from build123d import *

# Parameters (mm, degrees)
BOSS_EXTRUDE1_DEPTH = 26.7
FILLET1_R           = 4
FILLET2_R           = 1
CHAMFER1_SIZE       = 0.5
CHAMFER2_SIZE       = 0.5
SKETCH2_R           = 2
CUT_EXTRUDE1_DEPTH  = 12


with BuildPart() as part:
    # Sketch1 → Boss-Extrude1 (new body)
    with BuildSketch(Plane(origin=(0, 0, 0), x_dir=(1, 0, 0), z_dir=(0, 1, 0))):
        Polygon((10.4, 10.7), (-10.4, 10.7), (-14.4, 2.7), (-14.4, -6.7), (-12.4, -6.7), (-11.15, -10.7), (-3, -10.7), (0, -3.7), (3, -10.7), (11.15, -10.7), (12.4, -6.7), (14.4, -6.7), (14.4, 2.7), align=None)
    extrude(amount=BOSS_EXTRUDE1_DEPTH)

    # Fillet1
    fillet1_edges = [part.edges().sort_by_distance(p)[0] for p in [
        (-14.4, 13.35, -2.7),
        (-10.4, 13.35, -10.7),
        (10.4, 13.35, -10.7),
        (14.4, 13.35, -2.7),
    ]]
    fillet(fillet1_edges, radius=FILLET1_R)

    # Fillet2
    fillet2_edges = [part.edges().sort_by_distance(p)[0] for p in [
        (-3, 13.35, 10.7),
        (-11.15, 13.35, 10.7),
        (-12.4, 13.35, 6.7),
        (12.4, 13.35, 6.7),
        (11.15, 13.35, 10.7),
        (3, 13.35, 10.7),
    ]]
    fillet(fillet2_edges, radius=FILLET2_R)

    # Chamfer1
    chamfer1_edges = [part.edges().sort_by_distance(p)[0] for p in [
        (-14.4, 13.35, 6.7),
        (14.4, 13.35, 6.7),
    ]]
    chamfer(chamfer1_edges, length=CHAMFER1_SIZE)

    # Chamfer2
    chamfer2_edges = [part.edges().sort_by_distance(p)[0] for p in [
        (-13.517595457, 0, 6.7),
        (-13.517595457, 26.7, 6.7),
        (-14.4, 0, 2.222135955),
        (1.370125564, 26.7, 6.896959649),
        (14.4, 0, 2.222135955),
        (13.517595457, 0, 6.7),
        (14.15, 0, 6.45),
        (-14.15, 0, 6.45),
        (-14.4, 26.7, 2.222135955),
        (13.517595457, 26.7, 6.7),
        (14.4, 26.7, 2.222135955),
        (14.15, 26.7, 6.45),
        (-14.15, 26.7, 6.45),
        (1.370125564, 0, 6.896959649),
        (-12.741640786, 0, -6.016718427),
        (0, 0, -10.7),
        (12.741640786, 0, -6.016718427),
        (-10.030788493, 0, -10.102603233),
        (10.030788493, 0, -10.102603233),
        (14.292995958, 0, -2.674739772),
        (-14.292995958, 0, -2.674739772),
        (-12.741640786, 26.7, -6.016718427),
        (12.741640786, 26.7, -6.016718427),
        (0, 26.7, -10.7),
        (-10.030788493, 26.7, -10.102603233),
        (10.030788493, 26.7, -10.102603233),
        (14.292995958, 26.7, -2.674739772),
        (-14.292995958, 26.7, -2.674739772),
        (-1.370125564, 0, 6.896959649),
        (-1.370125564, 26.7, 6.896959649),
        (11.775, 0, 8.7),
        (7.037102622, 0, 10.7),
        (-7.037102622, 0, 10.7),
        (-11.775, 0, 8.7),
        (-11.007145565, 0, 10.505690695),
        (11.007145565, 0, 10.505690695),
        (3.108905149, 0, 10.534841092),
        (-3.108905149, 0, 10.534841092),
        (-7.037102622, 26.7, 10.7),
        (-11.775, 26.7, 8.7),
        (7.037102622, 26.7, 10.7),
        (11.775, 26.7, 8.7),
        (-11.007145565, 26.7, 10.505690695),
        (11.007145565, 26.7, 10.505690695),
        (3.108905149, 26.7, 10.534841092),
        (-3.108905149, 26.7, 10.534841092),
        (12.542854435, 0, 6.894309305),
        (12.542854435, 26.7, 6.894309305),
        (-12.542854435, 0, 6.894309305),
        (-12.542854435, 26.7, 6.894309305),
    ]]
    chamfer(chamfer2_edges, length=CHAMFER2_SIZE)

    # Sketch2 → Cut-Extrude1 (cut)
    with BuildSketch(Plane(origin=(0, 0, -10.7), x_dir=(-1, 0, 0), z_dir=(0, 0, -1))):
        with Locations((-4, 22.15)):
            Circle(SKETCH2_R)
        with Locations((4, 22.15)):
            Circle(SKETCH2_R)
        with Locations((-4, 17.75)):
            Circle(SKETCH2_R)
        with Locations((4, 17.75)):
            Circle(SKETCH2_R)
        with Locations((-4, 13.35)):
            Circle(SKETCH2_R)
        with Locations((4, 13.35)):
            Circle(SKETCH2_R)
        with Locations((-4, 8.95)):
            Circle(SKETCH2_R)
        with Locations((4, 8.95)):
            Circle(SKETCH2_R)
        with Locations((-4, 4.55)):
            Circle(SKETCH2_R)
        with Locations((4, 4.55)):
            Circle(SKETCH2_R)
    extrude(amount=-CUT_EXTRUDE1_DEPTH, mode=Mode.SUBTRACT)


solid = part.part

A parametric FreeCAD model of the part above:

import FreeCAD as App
import Part
import Sketcher

V = App.Vector
Q = App.Units.Quantity


def edges_at(feature, points):
    """Names of the edges that pass closest to the given points."""
    edges = feature.Shape.Edges
    near = lambda p: min(range(len(edges)), key=lambda i: edges[i].distToShape(Part.Vertex(*p))[0])
    return sorted({f"Edge{near(p) + 1}" for p in points})


def add_polygon(sketch, points):
    """Adds a closed chain of lines whose ends are joined by coincident constraints."""
    first, n = sketch.GeometryCount, len(points)
    for a, b in zip(points, points[1:] + points[:1]):
        sketch.addGeometry(Part.LineSegment(App.Vector(*a, 0), App.Vector(*b, 0)), False)
    for i in range(n):
        sketch.addConstraint(Sketcher.Constraint("Coincident", first + i, 2, first + (i + 1) % n, 1))

doc = App.newDocument("Part")
params = doc.addObject("Spreadsheet::Sheet", "Params")
for row, (alias, value) in enumerate([
    ("sketch1_width", "2 mm"),
    ("sketch1_width2", "20.8 mm"),
    ("sketch1_height", "9.4 mm"),
    ("sketch1_width3", "8.15 mm"),
    ("pad1_length", "26.7 mm"),
    ("fillet_radius", "4 mm"),
    ("fillet2_radius", "1 mm"),
    ("chamfer_size", "0.5 mm"),
    ("chamfer2_size", "0.5 mm"),
    ("sketch2_diameter", "4 mm"),
    ("pocket1_length", "12 mm"),
], start=1):
    params.set(f"A{row}", alias)
    params.set(f"B{row}", "=" + value)
    params.setAlias(f"B{row}", alias)

body = doc.addObject("PartDesign::Body", "Body")

# Sketch on XZ plane
sketch1 = body.newObject("Sketcher::SketchObject", "Sketch")
sketch1.AttachmentSupport = (doc.getObject("XZ_Plane"), [""])
sketch1.MapMode = "FlatFace"
add_polygon(sketch1, [(10.4, -10.7), (-10.4, -10.7), (-14.4, -2.7), (-14.4, 6.7), (-12.4, 6.7), (-11.2, 10.7), (-3, 10.7), (0, 3.7), (3, 10.7), (11.2, 10.7), (12.4, 6.7), (14.4, 6.7), (14.4, -2.7)])  # lines 0-12
sketch1.addConstraint(Sketcher.Constraint("Horizontal", 0))
sketch1.addConstraint(Sketcher.Constraint("Vertical", 2))
sketch1.addConstraint(Sketcher.Constraint("Horizontal", 3))
sketch1.addConstraint(Sketcher.Constraint("Horizontal", 5))
sketch1.addConstraint(Sketcher.Constraint("Horizontal", 8))
sketch1.addConstraint(Sketcher.Constraint("Horizontal", 10))
sketch1.addConstraint(Sketcher.Constraint("Vertical", 11))
sketch1.addConstraint(Sketcher.Constraint("Symmetric", 5, 2, 7, 2, -2))
sketch1.addConstraint(Sketcher.Constraint("Symmetric", 3, 2, 9, 2, -2))
sketch1.addConstraint(Sketcher.Constraint("Symmetric", 1, 2, 11, 2, -2))
sketch1.addConstraint(Sketcher.Constraint("PointOnObject", 6, 2, -2))
sketch1.addConstraint(Sketcher.Constraint("Equal", 5, 8))
sketch1.addConstraint(Sketcher.Constraint("Equal", 1, 12))
sketch1.addConstraint(Sketcher.Constraint("DistanceX", 3, 1, 3, 2, Q("2 mm")))
sketch1.addConstraint(Sketcher.Constraint("DistanceX", 0, 2, 0, 1, Q("20.8 mm")))
sketch1.addConstraint(Sketcher.Constraint("DistanceY", 2, 1, 2, 2, Q("9.4 mm")))
sketch1.addConstraint(Sketcher.Constraint("DistanceX", 5, 2, -1, 1, Q("3 mm")))
sketch1.addConstraint(Sketcher.Constraint("DistanceX", 1, 2, 0, 2, Q("4 mm")))
sketch1.addConstraint(Sketcher.Constraint("DistanceY", 0, 2, 1, 2, Q("8 mm")))
sketch1.addConstraint(Sketcher.Constraint("DistanceY", 3, 2, 4, 2, Q("4 mm")))
sketch1.addConstraint(Sketcher.Constraint("DistanceY", 6, 2, 5, 2, Q("7 mm")))
sketch1.addConstraint(Sketcher.Constraint("DistanceX", 5, 1, 5, 2, Q("8.15 mm")))
sketch1.addConstraint(Sketcher.Constraint("DistanceY", 0, 2, -1, 1, Q("10.7 mm")))
sketch1.setExpression("Constraints[26]", "Params.sketch1_width")
sketch1.setExpression("Constraints[27]", "Params.sketch1_width2")
sketch1.setExpression("Constraints[28]", "Params.sketch1_height")
sketch1.setExpression("Constraints[34]", "Params.sketch1_width3")
pad1 = body.newObject("PartDesign::Pad", "Pad")
pad1.Profile = sketch1
pad1.setExpression("Length", "Params.pad1_length")
pad1.Reversed = True
doc.recompute()

fillet = body.newObject("PartDesign::Fillet", "Fillet")
fillet.Base = (pad1, edges_at(pad1, [
    (-14.4, 13.35, -2.7),
    (-10.4, 13.35, -10.7),
    (10.4, 13.35, -10.7),
    (14.4, 13.35, -2.7),
]))
fillet.setExpression("Radius", "Params.fillet_radius")
doc.recompute()

fillet2 = body.newObject("PartDesign::Fillet", "Fillet001")
fillet2.Base = (fillet, edges_at(fillet, [
    (-3, 13.35, 10.7),
    (-11.15, 13.35, 10.7),
    (-12.4, 13.35, 6.7),
    (12.4, 13.35, 6.7),
    (11.15, 13.35, 10.7),
    (3, 13.35, 10.7),
]))
fillet2.setExpression("Radius", "Params.fillet2_radius")
doc.recompute()

chamfer = body.newObject("PartDesign::Chamfer", "Chamfer")
chamfer.Base = (fillet2, edges_at(fillet2, [(-14.4, 13.35, 6.7), (14.4, 13.35, 6.7)]))
chamfer.setExpression("Size", "Params.chamfer_size")
doc.recompute()

chamfer2 = body.newObject("PartDesign::Chamfer", "Chamfer001")
chamfer2.Base = (chamfer, edges_at(chamfer, [
    (-13.518, 0, 6.7),
    (-13.518, 26.7, 6.7),
    (-14.4, 0, 2.222),
    (1.37, 26.7, 6.897),
    (14.4, 0, 2.222),
    (13.518, 0, 6.7),
    (14.15, 0, 6.45),
    (-14.15, 0, 6.45),
    (-14.4, 26.7, 2.222),
    (13.518, 26.7, 6.7),
    (14.4, 26.7, 2.222),
    (14.15, 26.7, 6.45),
    (-14.15, 26.7, 6.45),
    (1.37, 0, 6.897),
    (-12.742, 0, -6.017),
    (0, 0, -10.7),
    (12.742, 0, -6.017),
    (-10.031, 0, -10.103),
    (10.031, 0, -10.103),
    (14.293, 0, -2.675),
    (-14.293, 0, -2.675),
    (-12.742, 26.7, -6.017),
    (12.742, 26.7, -6.017),
    (0, 26.7, -10.7),
    (-10.031, 26.7, -10.103),
    (10.031, 26.7, -10.103),
    (14.293, 26.7, -2.675),
    (-14.293, 26.7, -2.675),
    (-1.37, 0, 6.897),
    (-1.37, 26.7, 6.897),
    (11.775, 0, 8.7),
    (7.037, 0, 10.7),
    (-7.037, 0, 10.7),
    (-11.775, 0, 8.7),
    (-11.007, 0, 10.506),
    (11.007, 0, 10.506),
    (3.109, 0, 10.535),
    (-3.109, 0, 10.535),
    (-7.037, 26.7, 10.7),
    (-11.775, 26.7, 8.7),
    (7.037, 26.7, 10.7),
    (11.775, 26.7, 8.7),
    (-11.007, 26.7, 10.506),
    (11.007, 26.7, 10.506),
    (3.109, 26.7, 10.535),
    (-3.109, 26.7, 10.535),
    (12.543, 0, 6.894),
    (12.543, 26.7, 6.894),
    (-12.543, 0, 6.894),
    (-12.543, 26.7, 6.894),
]))
chamfer2.setExpression("Size", "Params.chamfer2_size")

# Sketch on XY plane
sketch2 = body.newObject("Sketcher::SketchObject", "Sketch001")
sketch2.AttachmentSupport = (doc.getObject("XY_Plane"), [""])
sketch2.MapMode = "FlatFace"
sketch2.AttachmentOffset = App.Placement(V(0, 0, -10.7), App.Rotation())
sketch2.addGeometry(Part.Circle(V(4, 22.1, 0), V(0, 0, 1), 2), False)
sketch2.addGeometry(Part.Circle(V(-4, 22.1, 0), V(0, 0, 1), 2), False)
sketch2.addGeometry(Part.Circle(V(4, 17.8, 0), V(0, 0, 1), 2), False)
sketch2.addGeometry(Part.Circle(V(-4, 17.8, 0), V(0, 0, 1), 2), False)
sketch2.addGeometry(Part.Circle(V(4, 13.3, 0), V(0, 0, 1), 2), False)
sketch2.addGeometry(Part.Circle(V(-4, 13.3, 0), V(0, 0, 1), 2), False)
sketch2.addGeometry(Part.Circle(V(4, 8.9, 0), V(0, 0, 1), 2), False)
sketch2.addGeometry(Part.Circle(V(-4, 8.9, 0), V(0, 0, 1), 2), False)
sketch2.addGeometry(Part.Circle(V(4, 4.5, 0), V(0, 0, 1), 2), False)
sketch2.addGeometry(Part.Circle(V(-4, 4.5, 0), V(0, 0, 1), 2), False)
sketch2.addConstraint(Sketcher.Constraint("Equal", 0, 1))
sketch2.addConstraint(Sketcher.Constraint("Equal", 1, 2))
sketch2.addConstraint(Sketcher.Constraint("Equal", 2, 3))
sketch2.addConstraint(Sketcher.Constraint("Equal", 3, 4))
sketch2.addConstraint(Sketcher.Constraint("Equal", 4, 5))
sketch2.addConstraint(Sketcher.Constraint("Equal", 5, 6))
sketch2.addConstraint(Sketcher.Constraint("Equal", 6, 7))
sketch2.addConstraint(Sketcher.Constraint("Equal", 7, 8))
sketch2.addConstraint(Sketcher.Constraint("Equal", 8, 9))
sketch2.addConstraint(Sketcher.Constraint("Symmetric", 0, 3, 1, 3, -2))
sketch2.addConstraint(Sketcher.Constraint("Symmetric", 2, 3, 3, 3, -2))
sketch2.addConstraint(Sketcher.Constraint("Symmetric", 4, 3, 5, 3, -2))
sketch2.addConstraint(Sketcher.Constraint("Symmetric", 6, 3, 7, 3, -2))
sketch2.addConstraint(Sketcher.Constraint("Symmetric", 8, 3, 9, 3, -2))
sketch2.addConstraint(Sketcher.Constraint("Vertical", 0, 3, 2, 3))
sketch2.addConstraint(Sketcher.Constraint("Vertical", 2, 3, 4, 3))
sketch2.addConstraint(Sketcher.Constraint("Vertical", 4, 3, 6, 3))
sketch2.addConstraint(Sketcher.Constraint("Vertical", 6, 3, 8, 3))
sketch2.addConstraint(Sketcher.Constraint("Diameter", 0, Q("4 mm")))
sketch2.addConstraint(Sketcher.Constraint("DistanceX", -1, 1, 0, 3, Q("4 mm")))
sketch2.addConstraint(Sketcher.Constraint("DistanceY", 2, 3, 0, 3, Q("4.4 mm")))
sketch2.addConstraint(Sketcher.Constraint("DistanceY", 4, 3, 2, 3, Q("4.4 mm")))
sketch2.addConstraint(Sketcher.Constraint("DistanceY", 6, 3, 4, 3, Q("4.4 mm")))
sketch2.addConstraint(Sketcher.Constraint("DistanceY", 8, 3, 6, 3, Q("4.4 mm")))
sketch2.addConstraint(Sketcher.Constraint("DistanceY", -1, 1, 0, 3, Q("22.15 mm")))
sketch2.setExpression("Constraints[18]", "Params.sketch2_diameter")
pocket1 = body.newObject("PartDesign::Pocket", "Pocket")
pocket1.Profile = sketch2
pocket1.setExpression("Length", "Params.pocket1_length")
pocket1.Reversed = True

doc.recompute()
